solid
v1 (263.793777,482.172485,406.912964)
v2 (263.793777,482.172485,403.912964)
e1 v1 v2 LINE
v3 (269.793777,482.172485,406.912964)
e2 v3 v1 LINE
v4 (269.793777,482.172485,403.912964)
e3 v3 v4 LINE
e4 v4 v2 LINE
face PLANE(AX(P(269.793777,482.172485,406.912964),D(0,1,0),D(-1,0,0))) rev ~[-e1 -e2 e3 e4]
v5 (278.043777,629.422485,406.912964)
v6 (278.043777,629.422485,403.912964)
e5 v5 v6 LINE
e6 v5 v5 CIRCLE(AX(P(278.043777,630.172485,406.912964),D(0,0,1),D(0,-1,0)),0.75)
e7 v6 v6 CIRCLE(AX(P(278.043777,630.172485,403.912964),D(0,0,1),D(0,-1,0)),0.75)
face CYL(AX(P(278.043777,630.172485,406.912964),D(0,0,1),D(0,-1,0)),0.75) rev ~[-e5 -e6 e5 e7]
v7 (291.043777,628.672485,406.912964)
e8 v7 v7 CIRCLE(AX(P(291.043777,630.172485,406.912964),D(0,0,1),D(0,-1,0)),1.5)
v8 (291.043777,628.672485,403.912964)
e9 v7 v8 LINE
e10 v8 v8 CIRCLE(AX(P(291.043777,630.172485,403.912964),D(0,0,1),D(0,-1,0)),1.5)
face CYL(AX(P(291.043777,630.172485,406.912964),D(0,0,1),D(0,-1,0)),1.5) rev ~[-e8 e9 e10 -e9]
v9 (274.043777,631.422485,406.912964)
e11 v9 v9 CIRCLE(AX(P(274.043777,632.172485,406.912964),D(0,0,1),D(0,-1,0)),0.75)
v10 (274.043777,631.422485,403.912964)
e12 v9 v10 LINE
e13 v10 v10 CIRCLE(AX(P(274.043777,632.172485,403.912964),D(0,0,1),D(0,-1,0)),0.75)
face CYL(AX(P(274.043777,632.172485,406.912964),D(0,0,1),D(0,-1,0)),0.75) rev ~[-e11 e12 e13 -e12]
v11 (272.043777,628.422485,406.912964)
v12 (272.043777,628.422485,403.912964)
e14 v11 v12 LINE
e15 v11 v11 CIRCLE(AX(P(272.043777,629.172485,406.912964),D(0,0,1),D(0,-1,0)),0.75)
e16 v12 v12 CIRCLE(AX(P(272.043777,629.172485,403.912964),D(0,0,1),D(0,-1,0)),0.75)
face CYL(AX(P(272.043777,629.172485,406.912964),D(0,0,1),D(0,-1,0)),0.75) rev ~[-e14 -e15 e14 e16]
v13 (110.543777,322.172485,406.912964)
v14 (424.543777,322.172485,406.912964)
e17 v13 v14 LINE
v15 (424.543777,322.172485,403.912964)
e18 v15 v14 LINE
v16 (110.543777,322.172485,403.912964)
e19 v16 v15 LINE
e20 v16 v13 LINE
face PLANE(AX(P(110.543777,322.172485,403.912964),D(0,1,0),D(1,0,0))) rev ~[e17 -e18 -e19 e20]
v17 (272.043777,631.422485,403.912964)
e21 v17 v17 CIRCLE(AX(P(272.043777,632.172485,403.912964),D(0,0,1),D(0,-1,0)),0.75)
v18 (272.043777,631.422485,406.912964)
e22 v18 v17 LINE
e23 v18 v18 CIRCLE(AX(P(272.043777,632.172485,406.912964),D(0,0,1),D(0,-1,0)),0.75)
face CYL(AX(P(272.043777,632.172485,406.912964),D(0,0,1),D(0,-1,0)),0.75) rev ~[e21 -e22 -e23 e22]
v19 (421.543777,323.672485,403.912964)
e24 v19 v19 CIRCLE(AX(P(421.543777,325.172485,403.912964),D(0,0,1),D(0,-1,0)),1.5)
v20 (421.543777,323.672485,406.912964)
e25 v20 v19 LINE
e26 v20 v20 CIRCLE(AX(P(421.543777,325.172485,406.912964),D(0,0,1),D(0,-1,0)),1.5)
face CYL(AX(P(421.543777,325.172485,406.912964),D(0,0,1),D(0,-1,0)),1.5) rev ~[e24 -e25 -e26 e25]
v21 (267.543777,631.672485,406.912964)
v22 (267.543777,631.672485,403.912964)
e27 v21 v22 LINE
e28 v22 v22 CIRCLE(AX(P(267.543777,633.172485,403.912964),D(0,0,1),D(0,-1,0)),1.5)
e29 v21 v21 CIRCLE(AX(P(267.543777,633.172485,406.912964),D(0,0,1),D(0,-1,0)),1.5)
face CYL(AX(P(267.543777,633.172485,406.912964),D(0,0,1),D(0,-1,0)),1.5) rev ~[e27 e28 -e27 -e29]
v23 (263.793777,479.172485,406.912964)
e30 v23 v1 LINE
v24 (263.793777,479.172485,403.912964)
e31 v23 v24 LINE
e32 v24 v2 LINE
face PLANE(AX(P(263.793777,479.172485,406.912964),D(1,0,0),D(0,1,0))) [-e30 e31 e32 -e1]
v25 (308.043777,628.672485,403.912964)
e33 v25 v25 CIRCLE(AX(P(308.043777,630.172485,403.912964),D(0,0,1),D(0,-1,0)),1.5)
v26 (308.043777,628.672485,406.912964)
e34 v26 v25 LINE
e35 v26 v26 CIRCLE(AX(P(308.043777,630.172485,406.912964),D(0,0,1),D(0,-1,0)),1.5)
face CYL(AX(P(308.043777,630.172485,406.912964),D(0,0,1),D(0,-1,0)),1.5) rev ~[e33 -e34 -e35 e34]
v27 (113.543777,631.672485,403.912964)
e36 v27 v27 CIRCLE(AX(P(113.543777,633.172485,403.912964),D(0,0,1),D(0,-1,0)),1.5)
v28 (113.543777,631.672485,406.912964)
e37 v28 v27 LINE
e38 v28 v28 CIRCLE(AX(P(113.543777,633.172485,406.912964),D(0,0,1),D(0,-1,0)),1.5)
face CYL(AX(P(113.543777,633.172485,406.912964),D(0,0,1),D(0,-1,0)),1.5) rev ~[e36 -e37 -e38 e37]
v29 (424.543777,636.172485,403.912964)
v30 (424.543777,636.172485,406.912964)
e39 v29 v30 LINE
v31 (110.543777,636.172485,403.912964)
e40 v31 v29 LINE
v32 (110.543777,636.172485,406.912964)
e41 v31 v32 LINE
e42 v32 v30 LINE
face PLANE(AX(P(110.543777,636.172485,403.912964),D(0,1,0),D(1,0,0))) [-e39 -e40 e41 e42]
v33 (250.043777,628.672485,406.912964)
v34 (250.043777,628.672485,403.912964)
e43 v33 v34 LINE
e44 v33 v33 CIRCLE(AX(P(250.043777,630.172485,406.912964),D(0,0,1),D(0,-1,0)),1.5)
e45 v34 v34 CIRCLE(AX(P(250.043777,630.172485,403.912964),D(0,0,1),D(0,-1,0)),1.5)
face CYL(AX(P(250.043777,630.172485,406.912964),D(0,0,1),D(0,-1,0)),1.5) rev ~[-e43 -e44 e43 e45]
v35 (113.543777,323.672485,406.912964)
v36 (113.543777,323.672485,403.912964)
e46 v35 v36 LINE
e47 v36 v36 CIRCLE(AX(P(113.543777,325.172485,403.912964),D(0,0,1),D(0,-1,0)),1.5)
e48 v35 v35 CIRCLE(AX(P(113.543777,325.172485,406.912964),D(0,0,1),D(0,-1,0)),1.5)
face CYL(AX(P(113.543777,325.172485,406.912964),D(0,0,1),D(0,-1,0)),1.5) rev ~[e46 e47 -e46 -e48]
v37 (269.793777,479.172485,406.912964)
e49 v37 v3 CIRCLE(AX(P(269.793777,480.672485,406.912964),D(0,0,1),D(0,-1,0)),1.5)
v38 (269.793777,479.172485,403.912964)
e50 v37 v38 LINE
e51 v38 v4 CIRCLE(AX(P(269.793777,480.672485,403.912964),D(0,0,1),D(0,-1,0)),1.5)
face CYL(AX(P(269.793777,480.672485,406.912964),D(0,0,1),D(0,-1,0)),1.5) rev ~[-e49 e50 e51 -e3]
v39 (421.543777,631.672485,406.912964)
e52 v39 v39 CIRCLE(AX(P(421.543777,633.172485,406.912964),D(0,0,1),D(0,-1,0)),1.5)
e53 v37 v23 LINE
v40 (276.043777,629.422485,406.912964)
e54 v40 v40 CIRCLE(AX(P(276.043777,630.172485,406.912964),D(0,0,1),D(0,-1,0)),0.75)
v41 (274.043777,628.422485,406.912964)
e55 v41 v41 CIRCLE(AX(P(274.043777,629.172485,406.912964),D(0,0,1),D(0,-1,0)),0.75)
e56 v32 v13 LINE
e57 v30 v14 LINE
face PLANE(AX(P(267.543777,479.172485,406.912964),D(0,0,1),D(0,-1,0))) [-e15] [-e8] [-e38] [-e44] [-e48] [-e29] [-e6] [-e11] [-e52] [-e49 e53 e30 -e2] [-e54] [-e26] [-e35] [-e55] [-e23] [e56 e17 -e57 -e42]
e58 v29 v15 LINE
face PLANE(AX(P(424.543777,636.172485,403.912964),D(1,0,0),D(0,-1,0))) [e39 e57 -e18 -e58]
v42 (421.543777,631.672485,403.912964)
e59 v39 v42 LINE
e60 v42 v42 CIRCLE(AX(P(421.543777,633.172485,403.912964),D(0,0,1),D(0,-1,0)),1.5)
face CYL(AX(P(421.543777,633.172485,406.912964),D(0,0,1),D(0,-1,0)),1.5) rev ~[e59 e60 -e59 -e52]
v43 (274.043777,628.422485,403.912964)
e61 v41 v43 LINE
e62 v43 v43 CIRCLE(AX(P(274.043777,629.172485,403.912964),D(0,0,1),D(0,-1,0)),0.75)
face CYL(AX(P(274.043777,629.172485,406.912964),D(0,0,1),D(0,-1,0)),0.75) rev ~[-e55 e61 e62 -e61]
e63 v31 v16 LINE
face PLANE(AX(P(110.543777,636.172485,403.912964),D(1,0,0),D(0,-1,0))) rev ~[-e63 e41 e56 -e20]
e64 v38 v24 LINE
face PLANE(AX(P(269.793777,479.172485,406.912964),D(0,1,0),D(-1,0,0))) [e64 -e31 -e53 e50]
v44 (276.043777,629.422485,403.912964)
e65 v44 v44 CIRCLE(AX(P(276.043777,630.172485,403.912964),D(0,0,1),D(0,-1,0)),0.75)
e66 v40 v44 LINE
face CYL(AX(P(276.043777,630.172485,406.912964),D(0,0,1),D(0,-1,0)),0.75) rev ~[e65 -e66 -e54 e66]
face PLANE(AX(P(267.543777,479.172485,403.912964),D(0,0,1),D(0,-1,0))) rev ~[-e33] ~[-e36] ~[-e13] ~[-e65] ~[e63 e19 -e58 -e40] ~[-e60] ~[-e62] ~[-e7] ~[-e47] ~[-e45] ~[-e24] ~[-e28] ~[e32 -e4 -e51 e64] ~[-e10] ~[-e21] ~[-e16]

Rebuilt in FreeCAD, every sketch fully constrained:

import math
import FreeCAD as App
import Part
import Sketcher
from FreeCAD import Vector


def add_polygon(sketch, points):
    """Adds a closed chain of lines whose ends are joined by coincident constraints."""
    first, n = sketch.GeometryCount, len(points)
    for a, b in zip(points, points[1:] + points[:1]):
        sketch.addGeometry(Part.LineSegment(App.Vector(*a, 0), App.Vector(*b, 0)), False)
    for i in range(n):
        sketch.addConstraint(Sketcher.Constraint("Coincident", first + i, 2, first + (i + 1) % n, 1))

doc = App.newDocument("Part")
body = doc.addObject("PartDesign::Body", "Body")

# Sketch on XY plane
sketch1 = body.newObject("Sketcher::SketchObject", "Sketch")
sketch1.AttachmentSupport = (doc.getObject("XY_Plane"), [""])
sketch1.MapMode = "FlatFace"
sketch1.AttachmentOffset = App.Placement(Vector(0, 0, 403.912964), App.Rotation())
add_polygon(sketch1, [(425, 636), (111, 636), (111, 322), (425, 322)])  # lines 0-3
sketch1.addConstraint(Sketcher.Constraint("Horizontal", 0))
sketch1.addConstraint(Sketcher.Constraint("Vertical", 1))
sketch1.addConstraint(Sketcher.Constraint("Horizontal", 2))
sketch1.addConstraint(Sketcher.Constraint("Vertical", 3))
sketch1.addConstraint(Sketcher.Constraint("Equal", 2, 1))
sketch1.addConstraint(Sketcher.Constraint("DistanceX", 0, 2, 0, 1, 314.0))
sketch1.addConstraint(Sketcher.Constraint("DistanceX", -1, 1, 0, 2, 110.543777))
sketch1.addConstraint(Sketcher.Constraint("DistanceY", -1, 1, 0, 2, 636.172485))
pad1 = body.newObject("PartDesign::Pad", "Pad")
pad1.Profile = sketch1
pad1.Length = 3

# Sketch on XY plane
sketch2 = body.newObject("Sketcher::SketchObject", "Sketch001")
sketch2.AttachmentSupport = (doc.getObject("XY_Plane"), [""])
sketch2.MapMode = "FlatFace"
sketch2.AttachmentOffset = App.Placement(Vector(0, 0, 406.912964), App.Rotation())
add_polygon(sketch2, [(258, 632.2), (243, 632.2), (243, 628.2), (258, 628.2)])  # lines 0-3
add_polygon(sketch2, [(298, 632.2), (283, 632.2), (283, 628.2), (298, 628.2)])  # lines 4-7
add_polygon(sketch2, [(316, 632.2), (301, 632.2), (301, 628.2), (316, 628.2)])  # lines 8-11
add_polygon(sketch2, [(275, 633.2), (271, 633.2), (271, 631.2), (275, 631.2)])  # lines 12-15
add_polygon(sketch2, [(275, 630.2), (271, 630.2), (271, 628.2), (275, 628.2)])  # lines 16-19
add_polygon(sketch2, [(279.1, 631.2), (275.1, 631.2), (275.1, 629.2), (279.1, 629.2)])  # lines 20-23
sketch2.addConstraint(Sketcher.Constraint("Horizontal", 0))
sketch2.addConstraint(Sketcher.Constraint("Vertical", 1))
sketch2.addConstraint(Sketcher.Constraint("Horizontal", 2))
sketch2.addConstraint(Sketcher.Constraint("Vertical", 3))
sketch2.addConstraint(Sketcher.Constraint("Horizontal", 4))
sketch2.addConstraint(Sketcher.Constraint("Vertical", 5))
sketch2.addConstraint(Sketcher.Constraint("Horizontal", 6))
sketch2.addConstraint(Sketcher.Constraint("Vertical", 7))
sketch2.addConstraint(Sketcher.Constraint("Horizontal", 8))
sketch2.addConstraint(Sketcher.Constraint("Vertical", 9))
sketch2.addConstraint(Sketcher.Constraint("Horizontal", 10))
sketch2.addConstraint(Sketcher.Constraint("Vertical", 11))
sketch2.addConstraint(Sketcher.Constraint("Horizontal", 12))
sketch2.addConstraint(Sketcher.Constraint("Vertical", 13))
sketch2.addConstraint(Sketcher.Constraint("Horizontal", 14))
sketch2.addConstraint(Sketcher.Constraint("Vertical", 15))
sketch2.addConstraint(Sketcher.Constraint("Horizontal", 16))
sketch2.addConstraint(Sketcher.Constraint("Vertical", 17))
sketch2.addConstraint(Sketcher.Constraint("Horizontal", 18))
sketch2.addConstraint(Sketcher.Constraint("Vertical", 19))
sketch2.addConstraint(Sketcher.Constraint("Horizontal", 20))
sketch2.addConstraint(Sketcher.Constraint("Vertical", 21))
sketch2.addConstraint(Sketcher.Constraint("Horizontal", 22))
sketch2.addConstraint(Sketcher.Constraint("Vertical", 23))
sketch2.addConstraint(Sketcher.Constraint("Horizontal", 3, 2, 4, 2))
sketch2.addConstraint(Sketcher.Constraint("Horizontal", 2, 2, 5, 2))
sketch2.addConstraint(Sketcher.Constraint("Horizontal", 7, 2, 8, 2))
sketch2.addConstraint(Sketcher.Constraint("Horizontal", 6, 2, 9, 2))
sketch2.addConstraint(Sketcher.Constraint("Horizontal", 10, 2, 17, 2))
sketch2.addConstraint(Sketcher.Constraint("Horizontal", 14, 2, 20, 2))
sketch2.addConstraint(Sketcher.Constraint("Vertical", 13, 2, 16, 2))
sketch2.addConstraint(Sketcher.Constraint("Vertical", 15, 2, 18, 2))
sketch2.addConstraint(Sketcher.Constraint("Equal", 2, 4))
sketch2.addConstraint(Sketcher.Constraint("Equal", 6, 8))
sketch2.addConstraint(Sketcher.Constraint("Equal", 18, 20))
sketch2.addConstraint(Sketcher.Constraint("Equal", 22, 1))
sketch2.addConstraint(Sketcher.Constraint("Equal", 15, 17))
sketch2.addConstraint(Sketcher.Constraint("Equal", 19, 21))
sketch2.addConstraint(Sketcher.Constraint("DistanceX", 0, 2, 0, 1, 15.0))
sketch2.addConstraint(Sketcher.Constraint("DistanceX", 12, 2, 12, 1, 4.0))
sketch2.addConstraint(Sketcher.Constraint("DistanceY", 13, 2, 13, 1, 2.0))
sketch2.addConstraint(Sketcher.Constraint("DistanceX", 3, 2, 4, 2, 25.0))
sketch2.addConstraint(Sketcher.Constraint("DistanceX", 7, 2, 8, 2, 3.0))
sketch2.addConstraint(Sketcher.Constraint("DistanceX", 12, 2, 4, 2, 12.0))
sketch2.addConstraint(Sketcher.Constraint("DistanceY", 4, 2, 12, 2, 1.0))
sketch2.addConstraint(Sketcher.Constraint("DistanceX", 14, 2, 20, 2, 0.01))
sketch2.addConstraint(Sketcher.Constraint("DistanceX", -1, 1, 0, 2, 243.043777))
sketch2.addConstraint(Sketcher.Constraint("DistanceY", -1, 1, 0, 2, 632.172485))
pad2 = body.newObject("PartDesign::Pad", "Pad001")
pad2.Profile = sketch2
pad2.Length = 0.3
pad2.Reversed = True

# Sketch on XY plane
sketch3 = body.newObject("Sketcher::SketchObject", "Sketch002")
sketch3.AttachmentSupport = (doc.getObject("XY_Plane"), [""])
sketch3.MapMode = "FlatFace"
sketch3.AttachmentOffset = App.Placement(Vector(0, 0, 406.912964), App.Rotation())
sketch3.addGeometry(Part.Circle(Vector(250, 630.2, 0), Vector(0, 0, 1), 1.5), False)
sketch3.addGeometry(Part.Circle(Vector(267.5, 633.2, 0), Vector(0, 0, 1), 1.5), False)
sketch3.addGeometry(Part.Circle(Vector(272, 632.2, 0), Vector(0, 0, 1), 0.8), False)
sketch3.addGeometry(Part.Circle(Vector(274, 632.2, 0), Vector(0, 0, 1), 0.8), False)
sketch3.addGeometry(Part.Circle(Vector(272, 629.2, 0), Vector(0, 0, 1), 0.8), False)
sketch3.addGeometry(Part.Circle(Vector(274, 629.2, 0), Vector(0, 0, 1), 0.8), False)
sketch3.addGeometry(Part.Circle(Vector(278, 630.2, 0), Vector(0, 0, 1), 0.8), False)
sketch3.addGeometry(Part.Circle(Vector(276, 630.2, 0), Vector(0, 0, 1), 0.8), False)
sketch3.addGeometry(Part.Circle(Vector(291, 630.2, 0), Vector(0, 0, 1), 1.5), False)
sketch3.addGeometry(Part.Circle(Vector(308, 630.2, 0), Vector(0, 0, 1), 1.5), False)
sketch3.addGeometry(Part.Circle(Vector(421.5, 633.2, 0), Vector(0, 0, 1), 1.5), False)
sketch3.addGeometry(Part.Circle(Vector(113.5, 633.2, 0), Vector(0, 0, 1), 1.5), False)
sketch3.addGeometry(Part.Circle(Vector(113.5, 325.2, 0), Vector(0, 0, 1), 1.5), False)
sketch3.addGeometry(Part.Circle(Vector(421.5, 325.2, 0), Vector(0, 0, 1), 1.5), False)
sketch3.addGeometry(Part.LineSegment(Vector(263.8, 479.2, 0), Vector(269.8, 479.2, 0)), False)
sketch3.addGeometry(Part.ArcOfCircle(Part.Circle(Vector(269.8, 480.7, 0), Vector(0, 0, 1), 1.5), math.radians(-90), math.radians(90)), False)
sketch3.addGeometry(Part.LineSegment(Vector(269.8, 482.2, 0), Vector(263.8, 482.2, 0)), False)
sketch3.addGeometry(Part.LineSegment(Vector(263.8, 482.2, 0), Vector(263.8, 479.2, 0)), False)
sketch3.addConstraint(Sketcher.Constraint("Tangent", 14, 2, 15, 1))
sketch3.addConstraint(Sketcher.Constraint("Tangent", 15, 2, 16, 1))
sketch3.addConstraint(Sketcher.Constraint("Coincident", 16, 2, 17, 1))
sketch3.addConstraint(Sketcher.Constraint("Coincident", 17, 2, 14, 1))
sketch3.addConstraint(Sketcher.Constraint("Horizontal", 14))
sketch3.addConstraint(Sketcher.Constraint("Horizontal", 16))
sketch3.addConstraint(Sketcher.Constraint("Vertical", 17))
sketch3.addConstraint(Sketcher.Constraint("Equal", 0, 1))
sketch3.addConstraint(Sketcher.Constraint("Equal", 2, 3))
sketch3.addConstraint(Sketcher.Constraint("Equal", 3, 4))
sketch3.addConstraint(Sketcher.Constraint("Equal", 4, 5))
sketch3.addConstraint(Sketcher.Constraint("Equal", 5, 6))
sketch3.addConstraint(Sketcher.Constraint("Equal", 6, 7))
sketch3.addConstraint(Sketcher.Constraint("Equal", 1, 8))
sketch3.addConstraint(Sketcher.Constraint("Equal", 8, 9))
sketch3.addConstraint(Sketcher.Constraint("Equal", 9, 10))
sketch3.addConstraint(Sketcher.Constraint("Equal", 10, 11))
sketch3.addConstraint(Sketcher.Constraint("Equal", 11, 12))
sketch3.addConstraint(Sketcher.Constraint("Equal", 12, 13))
sketch3.addConstraint(Sketcher.Constraint("Equal", 13, 15))
sketch3.addConstraint(Sketcher.Constraint("Horizontal", 2, 3, 3, 3))
sketch3.addConstraint(Sketcher.Constraint("Horizontal", 4, 3, 5, 3))
sketch3.addConstraint(Sketcher.Constraint("Horizontal", 0, 3, 6, 3))
sketch3.addConstraint(Sketcher.Constraint("Horizontal", 6, 3, 7, 3))
sketch3.addConstraint(Sketcher.Constraint("Horizontal", 7, 3, 8, 3))
sketch3.addConstraint(Sketcher.Constraint("Horizontal", 8, 3, 9, 3))
sketch3.addConstraint(Sketcher.Constraint("Horizontal", 1, 3, 10, 3))
sketch3.addConstraint(Sketcher.Constraint("Horizontal", 10, 3, 11, 3))
sketch3.addConstraint(Sketcher.Constraint("Horizontal", 12, 3, 13, 3))
sketch3.addConstraint(Sketcher.Constraint("Vertical", 2, 3, 4, 3))
sketch3.addConstraint(Sketcher.Constraint("Vertical", 3, 3, 5, 3))
sketch3.addConstraint(Sketcher.Constraint("Vertical", 11, 3, 12, 3))
sketch3.addConstraint(Sketcher.Constraint("Vertical", 10, 3, 13, 3))
sketch3.addConstraint(Sketcher.Constraint("Diameter", 0, 3.0))
sketch3.addConstraint(Sketcher.Constraint("Diameter", 2, 1.5))
sketch3.addConstraint(Sketcher.Constraint("DistanceX", 14, 1, 14, 2, 6.0))
sketch3.addConstraint(Sketcher.Constraint("DistanceY", 0, 3, 1, 3, 3.0))
sketch3.addConstraint(Sketcher.Constraint("DistanceY", 2, 3, 1, 3, 1.0))
sketch3.addConstraint(Sketcher.Constraint("DistanceX", 0, 3, 2, 3, 22.0))
sketch3.addConstraint(Sketcher.Constraint("DistanceX", 2, 3, 3, 3, 2.0))
sketch3.addConstraint(Sketcher.Constraint("DistanceY", 4, 3, 2, 3, 3.0))
sketch3.addConstraint(Sketcher.Constraint("DistanceX", 5, 3, 6, 3, 4.0))
sketch3.addConstraint(Sketcher.Constraint("DistanceX", 7, 3, 6, 3, 2.0))
sketch3.addConstraint(Sketcher.Constraint("DistanceX", 6, 3, 8, 3, 13.0))
sketch3.addConstraint(Sketcher.Constraint("DistanceX", 8, 3, 9, 3, 17.0))
sketch3.addConstraint(Sketcher.Constraint("DistanceX", 11, 3, 1, 3, 154.0))
sketch3.addConstraint(Sketcher.Constraint("DistanceY", 12, 3, 11, 3, 308.0))
sketch3.addConstraint(Sketcher.Constraint("DistanceX", 12, 3, 13, 3, 308.0))
sketch3.addConstraint(Sketcher.Constraint("DistanceY", 14, 2, 4, 3, 150.0))
sketch3.addConstraint(Sketcher.Constraint("DistanceX", 0, 3, 1, 3, 17.5))
sketch3.addConstraint(Sketcher.Constraint("DistanceX", 15, 3, 4, 3, 2.25))
sketch3.addConstraint(Sketcher.Constraint("DistanceX", -1, 1, 0, 3, 250.043777))
sketch3.addConstraint(Sketcher.Constraint("DistanceY", -1, 1, 0, 3, 630.172485))
pocket1 = body.newObject("PartDesign::Pocket", "Pocket")
pocket1.Profile = sketch3
pocket1.Type = "ThroughAll"
pocket1.Midplane = True

doc.recompute()
